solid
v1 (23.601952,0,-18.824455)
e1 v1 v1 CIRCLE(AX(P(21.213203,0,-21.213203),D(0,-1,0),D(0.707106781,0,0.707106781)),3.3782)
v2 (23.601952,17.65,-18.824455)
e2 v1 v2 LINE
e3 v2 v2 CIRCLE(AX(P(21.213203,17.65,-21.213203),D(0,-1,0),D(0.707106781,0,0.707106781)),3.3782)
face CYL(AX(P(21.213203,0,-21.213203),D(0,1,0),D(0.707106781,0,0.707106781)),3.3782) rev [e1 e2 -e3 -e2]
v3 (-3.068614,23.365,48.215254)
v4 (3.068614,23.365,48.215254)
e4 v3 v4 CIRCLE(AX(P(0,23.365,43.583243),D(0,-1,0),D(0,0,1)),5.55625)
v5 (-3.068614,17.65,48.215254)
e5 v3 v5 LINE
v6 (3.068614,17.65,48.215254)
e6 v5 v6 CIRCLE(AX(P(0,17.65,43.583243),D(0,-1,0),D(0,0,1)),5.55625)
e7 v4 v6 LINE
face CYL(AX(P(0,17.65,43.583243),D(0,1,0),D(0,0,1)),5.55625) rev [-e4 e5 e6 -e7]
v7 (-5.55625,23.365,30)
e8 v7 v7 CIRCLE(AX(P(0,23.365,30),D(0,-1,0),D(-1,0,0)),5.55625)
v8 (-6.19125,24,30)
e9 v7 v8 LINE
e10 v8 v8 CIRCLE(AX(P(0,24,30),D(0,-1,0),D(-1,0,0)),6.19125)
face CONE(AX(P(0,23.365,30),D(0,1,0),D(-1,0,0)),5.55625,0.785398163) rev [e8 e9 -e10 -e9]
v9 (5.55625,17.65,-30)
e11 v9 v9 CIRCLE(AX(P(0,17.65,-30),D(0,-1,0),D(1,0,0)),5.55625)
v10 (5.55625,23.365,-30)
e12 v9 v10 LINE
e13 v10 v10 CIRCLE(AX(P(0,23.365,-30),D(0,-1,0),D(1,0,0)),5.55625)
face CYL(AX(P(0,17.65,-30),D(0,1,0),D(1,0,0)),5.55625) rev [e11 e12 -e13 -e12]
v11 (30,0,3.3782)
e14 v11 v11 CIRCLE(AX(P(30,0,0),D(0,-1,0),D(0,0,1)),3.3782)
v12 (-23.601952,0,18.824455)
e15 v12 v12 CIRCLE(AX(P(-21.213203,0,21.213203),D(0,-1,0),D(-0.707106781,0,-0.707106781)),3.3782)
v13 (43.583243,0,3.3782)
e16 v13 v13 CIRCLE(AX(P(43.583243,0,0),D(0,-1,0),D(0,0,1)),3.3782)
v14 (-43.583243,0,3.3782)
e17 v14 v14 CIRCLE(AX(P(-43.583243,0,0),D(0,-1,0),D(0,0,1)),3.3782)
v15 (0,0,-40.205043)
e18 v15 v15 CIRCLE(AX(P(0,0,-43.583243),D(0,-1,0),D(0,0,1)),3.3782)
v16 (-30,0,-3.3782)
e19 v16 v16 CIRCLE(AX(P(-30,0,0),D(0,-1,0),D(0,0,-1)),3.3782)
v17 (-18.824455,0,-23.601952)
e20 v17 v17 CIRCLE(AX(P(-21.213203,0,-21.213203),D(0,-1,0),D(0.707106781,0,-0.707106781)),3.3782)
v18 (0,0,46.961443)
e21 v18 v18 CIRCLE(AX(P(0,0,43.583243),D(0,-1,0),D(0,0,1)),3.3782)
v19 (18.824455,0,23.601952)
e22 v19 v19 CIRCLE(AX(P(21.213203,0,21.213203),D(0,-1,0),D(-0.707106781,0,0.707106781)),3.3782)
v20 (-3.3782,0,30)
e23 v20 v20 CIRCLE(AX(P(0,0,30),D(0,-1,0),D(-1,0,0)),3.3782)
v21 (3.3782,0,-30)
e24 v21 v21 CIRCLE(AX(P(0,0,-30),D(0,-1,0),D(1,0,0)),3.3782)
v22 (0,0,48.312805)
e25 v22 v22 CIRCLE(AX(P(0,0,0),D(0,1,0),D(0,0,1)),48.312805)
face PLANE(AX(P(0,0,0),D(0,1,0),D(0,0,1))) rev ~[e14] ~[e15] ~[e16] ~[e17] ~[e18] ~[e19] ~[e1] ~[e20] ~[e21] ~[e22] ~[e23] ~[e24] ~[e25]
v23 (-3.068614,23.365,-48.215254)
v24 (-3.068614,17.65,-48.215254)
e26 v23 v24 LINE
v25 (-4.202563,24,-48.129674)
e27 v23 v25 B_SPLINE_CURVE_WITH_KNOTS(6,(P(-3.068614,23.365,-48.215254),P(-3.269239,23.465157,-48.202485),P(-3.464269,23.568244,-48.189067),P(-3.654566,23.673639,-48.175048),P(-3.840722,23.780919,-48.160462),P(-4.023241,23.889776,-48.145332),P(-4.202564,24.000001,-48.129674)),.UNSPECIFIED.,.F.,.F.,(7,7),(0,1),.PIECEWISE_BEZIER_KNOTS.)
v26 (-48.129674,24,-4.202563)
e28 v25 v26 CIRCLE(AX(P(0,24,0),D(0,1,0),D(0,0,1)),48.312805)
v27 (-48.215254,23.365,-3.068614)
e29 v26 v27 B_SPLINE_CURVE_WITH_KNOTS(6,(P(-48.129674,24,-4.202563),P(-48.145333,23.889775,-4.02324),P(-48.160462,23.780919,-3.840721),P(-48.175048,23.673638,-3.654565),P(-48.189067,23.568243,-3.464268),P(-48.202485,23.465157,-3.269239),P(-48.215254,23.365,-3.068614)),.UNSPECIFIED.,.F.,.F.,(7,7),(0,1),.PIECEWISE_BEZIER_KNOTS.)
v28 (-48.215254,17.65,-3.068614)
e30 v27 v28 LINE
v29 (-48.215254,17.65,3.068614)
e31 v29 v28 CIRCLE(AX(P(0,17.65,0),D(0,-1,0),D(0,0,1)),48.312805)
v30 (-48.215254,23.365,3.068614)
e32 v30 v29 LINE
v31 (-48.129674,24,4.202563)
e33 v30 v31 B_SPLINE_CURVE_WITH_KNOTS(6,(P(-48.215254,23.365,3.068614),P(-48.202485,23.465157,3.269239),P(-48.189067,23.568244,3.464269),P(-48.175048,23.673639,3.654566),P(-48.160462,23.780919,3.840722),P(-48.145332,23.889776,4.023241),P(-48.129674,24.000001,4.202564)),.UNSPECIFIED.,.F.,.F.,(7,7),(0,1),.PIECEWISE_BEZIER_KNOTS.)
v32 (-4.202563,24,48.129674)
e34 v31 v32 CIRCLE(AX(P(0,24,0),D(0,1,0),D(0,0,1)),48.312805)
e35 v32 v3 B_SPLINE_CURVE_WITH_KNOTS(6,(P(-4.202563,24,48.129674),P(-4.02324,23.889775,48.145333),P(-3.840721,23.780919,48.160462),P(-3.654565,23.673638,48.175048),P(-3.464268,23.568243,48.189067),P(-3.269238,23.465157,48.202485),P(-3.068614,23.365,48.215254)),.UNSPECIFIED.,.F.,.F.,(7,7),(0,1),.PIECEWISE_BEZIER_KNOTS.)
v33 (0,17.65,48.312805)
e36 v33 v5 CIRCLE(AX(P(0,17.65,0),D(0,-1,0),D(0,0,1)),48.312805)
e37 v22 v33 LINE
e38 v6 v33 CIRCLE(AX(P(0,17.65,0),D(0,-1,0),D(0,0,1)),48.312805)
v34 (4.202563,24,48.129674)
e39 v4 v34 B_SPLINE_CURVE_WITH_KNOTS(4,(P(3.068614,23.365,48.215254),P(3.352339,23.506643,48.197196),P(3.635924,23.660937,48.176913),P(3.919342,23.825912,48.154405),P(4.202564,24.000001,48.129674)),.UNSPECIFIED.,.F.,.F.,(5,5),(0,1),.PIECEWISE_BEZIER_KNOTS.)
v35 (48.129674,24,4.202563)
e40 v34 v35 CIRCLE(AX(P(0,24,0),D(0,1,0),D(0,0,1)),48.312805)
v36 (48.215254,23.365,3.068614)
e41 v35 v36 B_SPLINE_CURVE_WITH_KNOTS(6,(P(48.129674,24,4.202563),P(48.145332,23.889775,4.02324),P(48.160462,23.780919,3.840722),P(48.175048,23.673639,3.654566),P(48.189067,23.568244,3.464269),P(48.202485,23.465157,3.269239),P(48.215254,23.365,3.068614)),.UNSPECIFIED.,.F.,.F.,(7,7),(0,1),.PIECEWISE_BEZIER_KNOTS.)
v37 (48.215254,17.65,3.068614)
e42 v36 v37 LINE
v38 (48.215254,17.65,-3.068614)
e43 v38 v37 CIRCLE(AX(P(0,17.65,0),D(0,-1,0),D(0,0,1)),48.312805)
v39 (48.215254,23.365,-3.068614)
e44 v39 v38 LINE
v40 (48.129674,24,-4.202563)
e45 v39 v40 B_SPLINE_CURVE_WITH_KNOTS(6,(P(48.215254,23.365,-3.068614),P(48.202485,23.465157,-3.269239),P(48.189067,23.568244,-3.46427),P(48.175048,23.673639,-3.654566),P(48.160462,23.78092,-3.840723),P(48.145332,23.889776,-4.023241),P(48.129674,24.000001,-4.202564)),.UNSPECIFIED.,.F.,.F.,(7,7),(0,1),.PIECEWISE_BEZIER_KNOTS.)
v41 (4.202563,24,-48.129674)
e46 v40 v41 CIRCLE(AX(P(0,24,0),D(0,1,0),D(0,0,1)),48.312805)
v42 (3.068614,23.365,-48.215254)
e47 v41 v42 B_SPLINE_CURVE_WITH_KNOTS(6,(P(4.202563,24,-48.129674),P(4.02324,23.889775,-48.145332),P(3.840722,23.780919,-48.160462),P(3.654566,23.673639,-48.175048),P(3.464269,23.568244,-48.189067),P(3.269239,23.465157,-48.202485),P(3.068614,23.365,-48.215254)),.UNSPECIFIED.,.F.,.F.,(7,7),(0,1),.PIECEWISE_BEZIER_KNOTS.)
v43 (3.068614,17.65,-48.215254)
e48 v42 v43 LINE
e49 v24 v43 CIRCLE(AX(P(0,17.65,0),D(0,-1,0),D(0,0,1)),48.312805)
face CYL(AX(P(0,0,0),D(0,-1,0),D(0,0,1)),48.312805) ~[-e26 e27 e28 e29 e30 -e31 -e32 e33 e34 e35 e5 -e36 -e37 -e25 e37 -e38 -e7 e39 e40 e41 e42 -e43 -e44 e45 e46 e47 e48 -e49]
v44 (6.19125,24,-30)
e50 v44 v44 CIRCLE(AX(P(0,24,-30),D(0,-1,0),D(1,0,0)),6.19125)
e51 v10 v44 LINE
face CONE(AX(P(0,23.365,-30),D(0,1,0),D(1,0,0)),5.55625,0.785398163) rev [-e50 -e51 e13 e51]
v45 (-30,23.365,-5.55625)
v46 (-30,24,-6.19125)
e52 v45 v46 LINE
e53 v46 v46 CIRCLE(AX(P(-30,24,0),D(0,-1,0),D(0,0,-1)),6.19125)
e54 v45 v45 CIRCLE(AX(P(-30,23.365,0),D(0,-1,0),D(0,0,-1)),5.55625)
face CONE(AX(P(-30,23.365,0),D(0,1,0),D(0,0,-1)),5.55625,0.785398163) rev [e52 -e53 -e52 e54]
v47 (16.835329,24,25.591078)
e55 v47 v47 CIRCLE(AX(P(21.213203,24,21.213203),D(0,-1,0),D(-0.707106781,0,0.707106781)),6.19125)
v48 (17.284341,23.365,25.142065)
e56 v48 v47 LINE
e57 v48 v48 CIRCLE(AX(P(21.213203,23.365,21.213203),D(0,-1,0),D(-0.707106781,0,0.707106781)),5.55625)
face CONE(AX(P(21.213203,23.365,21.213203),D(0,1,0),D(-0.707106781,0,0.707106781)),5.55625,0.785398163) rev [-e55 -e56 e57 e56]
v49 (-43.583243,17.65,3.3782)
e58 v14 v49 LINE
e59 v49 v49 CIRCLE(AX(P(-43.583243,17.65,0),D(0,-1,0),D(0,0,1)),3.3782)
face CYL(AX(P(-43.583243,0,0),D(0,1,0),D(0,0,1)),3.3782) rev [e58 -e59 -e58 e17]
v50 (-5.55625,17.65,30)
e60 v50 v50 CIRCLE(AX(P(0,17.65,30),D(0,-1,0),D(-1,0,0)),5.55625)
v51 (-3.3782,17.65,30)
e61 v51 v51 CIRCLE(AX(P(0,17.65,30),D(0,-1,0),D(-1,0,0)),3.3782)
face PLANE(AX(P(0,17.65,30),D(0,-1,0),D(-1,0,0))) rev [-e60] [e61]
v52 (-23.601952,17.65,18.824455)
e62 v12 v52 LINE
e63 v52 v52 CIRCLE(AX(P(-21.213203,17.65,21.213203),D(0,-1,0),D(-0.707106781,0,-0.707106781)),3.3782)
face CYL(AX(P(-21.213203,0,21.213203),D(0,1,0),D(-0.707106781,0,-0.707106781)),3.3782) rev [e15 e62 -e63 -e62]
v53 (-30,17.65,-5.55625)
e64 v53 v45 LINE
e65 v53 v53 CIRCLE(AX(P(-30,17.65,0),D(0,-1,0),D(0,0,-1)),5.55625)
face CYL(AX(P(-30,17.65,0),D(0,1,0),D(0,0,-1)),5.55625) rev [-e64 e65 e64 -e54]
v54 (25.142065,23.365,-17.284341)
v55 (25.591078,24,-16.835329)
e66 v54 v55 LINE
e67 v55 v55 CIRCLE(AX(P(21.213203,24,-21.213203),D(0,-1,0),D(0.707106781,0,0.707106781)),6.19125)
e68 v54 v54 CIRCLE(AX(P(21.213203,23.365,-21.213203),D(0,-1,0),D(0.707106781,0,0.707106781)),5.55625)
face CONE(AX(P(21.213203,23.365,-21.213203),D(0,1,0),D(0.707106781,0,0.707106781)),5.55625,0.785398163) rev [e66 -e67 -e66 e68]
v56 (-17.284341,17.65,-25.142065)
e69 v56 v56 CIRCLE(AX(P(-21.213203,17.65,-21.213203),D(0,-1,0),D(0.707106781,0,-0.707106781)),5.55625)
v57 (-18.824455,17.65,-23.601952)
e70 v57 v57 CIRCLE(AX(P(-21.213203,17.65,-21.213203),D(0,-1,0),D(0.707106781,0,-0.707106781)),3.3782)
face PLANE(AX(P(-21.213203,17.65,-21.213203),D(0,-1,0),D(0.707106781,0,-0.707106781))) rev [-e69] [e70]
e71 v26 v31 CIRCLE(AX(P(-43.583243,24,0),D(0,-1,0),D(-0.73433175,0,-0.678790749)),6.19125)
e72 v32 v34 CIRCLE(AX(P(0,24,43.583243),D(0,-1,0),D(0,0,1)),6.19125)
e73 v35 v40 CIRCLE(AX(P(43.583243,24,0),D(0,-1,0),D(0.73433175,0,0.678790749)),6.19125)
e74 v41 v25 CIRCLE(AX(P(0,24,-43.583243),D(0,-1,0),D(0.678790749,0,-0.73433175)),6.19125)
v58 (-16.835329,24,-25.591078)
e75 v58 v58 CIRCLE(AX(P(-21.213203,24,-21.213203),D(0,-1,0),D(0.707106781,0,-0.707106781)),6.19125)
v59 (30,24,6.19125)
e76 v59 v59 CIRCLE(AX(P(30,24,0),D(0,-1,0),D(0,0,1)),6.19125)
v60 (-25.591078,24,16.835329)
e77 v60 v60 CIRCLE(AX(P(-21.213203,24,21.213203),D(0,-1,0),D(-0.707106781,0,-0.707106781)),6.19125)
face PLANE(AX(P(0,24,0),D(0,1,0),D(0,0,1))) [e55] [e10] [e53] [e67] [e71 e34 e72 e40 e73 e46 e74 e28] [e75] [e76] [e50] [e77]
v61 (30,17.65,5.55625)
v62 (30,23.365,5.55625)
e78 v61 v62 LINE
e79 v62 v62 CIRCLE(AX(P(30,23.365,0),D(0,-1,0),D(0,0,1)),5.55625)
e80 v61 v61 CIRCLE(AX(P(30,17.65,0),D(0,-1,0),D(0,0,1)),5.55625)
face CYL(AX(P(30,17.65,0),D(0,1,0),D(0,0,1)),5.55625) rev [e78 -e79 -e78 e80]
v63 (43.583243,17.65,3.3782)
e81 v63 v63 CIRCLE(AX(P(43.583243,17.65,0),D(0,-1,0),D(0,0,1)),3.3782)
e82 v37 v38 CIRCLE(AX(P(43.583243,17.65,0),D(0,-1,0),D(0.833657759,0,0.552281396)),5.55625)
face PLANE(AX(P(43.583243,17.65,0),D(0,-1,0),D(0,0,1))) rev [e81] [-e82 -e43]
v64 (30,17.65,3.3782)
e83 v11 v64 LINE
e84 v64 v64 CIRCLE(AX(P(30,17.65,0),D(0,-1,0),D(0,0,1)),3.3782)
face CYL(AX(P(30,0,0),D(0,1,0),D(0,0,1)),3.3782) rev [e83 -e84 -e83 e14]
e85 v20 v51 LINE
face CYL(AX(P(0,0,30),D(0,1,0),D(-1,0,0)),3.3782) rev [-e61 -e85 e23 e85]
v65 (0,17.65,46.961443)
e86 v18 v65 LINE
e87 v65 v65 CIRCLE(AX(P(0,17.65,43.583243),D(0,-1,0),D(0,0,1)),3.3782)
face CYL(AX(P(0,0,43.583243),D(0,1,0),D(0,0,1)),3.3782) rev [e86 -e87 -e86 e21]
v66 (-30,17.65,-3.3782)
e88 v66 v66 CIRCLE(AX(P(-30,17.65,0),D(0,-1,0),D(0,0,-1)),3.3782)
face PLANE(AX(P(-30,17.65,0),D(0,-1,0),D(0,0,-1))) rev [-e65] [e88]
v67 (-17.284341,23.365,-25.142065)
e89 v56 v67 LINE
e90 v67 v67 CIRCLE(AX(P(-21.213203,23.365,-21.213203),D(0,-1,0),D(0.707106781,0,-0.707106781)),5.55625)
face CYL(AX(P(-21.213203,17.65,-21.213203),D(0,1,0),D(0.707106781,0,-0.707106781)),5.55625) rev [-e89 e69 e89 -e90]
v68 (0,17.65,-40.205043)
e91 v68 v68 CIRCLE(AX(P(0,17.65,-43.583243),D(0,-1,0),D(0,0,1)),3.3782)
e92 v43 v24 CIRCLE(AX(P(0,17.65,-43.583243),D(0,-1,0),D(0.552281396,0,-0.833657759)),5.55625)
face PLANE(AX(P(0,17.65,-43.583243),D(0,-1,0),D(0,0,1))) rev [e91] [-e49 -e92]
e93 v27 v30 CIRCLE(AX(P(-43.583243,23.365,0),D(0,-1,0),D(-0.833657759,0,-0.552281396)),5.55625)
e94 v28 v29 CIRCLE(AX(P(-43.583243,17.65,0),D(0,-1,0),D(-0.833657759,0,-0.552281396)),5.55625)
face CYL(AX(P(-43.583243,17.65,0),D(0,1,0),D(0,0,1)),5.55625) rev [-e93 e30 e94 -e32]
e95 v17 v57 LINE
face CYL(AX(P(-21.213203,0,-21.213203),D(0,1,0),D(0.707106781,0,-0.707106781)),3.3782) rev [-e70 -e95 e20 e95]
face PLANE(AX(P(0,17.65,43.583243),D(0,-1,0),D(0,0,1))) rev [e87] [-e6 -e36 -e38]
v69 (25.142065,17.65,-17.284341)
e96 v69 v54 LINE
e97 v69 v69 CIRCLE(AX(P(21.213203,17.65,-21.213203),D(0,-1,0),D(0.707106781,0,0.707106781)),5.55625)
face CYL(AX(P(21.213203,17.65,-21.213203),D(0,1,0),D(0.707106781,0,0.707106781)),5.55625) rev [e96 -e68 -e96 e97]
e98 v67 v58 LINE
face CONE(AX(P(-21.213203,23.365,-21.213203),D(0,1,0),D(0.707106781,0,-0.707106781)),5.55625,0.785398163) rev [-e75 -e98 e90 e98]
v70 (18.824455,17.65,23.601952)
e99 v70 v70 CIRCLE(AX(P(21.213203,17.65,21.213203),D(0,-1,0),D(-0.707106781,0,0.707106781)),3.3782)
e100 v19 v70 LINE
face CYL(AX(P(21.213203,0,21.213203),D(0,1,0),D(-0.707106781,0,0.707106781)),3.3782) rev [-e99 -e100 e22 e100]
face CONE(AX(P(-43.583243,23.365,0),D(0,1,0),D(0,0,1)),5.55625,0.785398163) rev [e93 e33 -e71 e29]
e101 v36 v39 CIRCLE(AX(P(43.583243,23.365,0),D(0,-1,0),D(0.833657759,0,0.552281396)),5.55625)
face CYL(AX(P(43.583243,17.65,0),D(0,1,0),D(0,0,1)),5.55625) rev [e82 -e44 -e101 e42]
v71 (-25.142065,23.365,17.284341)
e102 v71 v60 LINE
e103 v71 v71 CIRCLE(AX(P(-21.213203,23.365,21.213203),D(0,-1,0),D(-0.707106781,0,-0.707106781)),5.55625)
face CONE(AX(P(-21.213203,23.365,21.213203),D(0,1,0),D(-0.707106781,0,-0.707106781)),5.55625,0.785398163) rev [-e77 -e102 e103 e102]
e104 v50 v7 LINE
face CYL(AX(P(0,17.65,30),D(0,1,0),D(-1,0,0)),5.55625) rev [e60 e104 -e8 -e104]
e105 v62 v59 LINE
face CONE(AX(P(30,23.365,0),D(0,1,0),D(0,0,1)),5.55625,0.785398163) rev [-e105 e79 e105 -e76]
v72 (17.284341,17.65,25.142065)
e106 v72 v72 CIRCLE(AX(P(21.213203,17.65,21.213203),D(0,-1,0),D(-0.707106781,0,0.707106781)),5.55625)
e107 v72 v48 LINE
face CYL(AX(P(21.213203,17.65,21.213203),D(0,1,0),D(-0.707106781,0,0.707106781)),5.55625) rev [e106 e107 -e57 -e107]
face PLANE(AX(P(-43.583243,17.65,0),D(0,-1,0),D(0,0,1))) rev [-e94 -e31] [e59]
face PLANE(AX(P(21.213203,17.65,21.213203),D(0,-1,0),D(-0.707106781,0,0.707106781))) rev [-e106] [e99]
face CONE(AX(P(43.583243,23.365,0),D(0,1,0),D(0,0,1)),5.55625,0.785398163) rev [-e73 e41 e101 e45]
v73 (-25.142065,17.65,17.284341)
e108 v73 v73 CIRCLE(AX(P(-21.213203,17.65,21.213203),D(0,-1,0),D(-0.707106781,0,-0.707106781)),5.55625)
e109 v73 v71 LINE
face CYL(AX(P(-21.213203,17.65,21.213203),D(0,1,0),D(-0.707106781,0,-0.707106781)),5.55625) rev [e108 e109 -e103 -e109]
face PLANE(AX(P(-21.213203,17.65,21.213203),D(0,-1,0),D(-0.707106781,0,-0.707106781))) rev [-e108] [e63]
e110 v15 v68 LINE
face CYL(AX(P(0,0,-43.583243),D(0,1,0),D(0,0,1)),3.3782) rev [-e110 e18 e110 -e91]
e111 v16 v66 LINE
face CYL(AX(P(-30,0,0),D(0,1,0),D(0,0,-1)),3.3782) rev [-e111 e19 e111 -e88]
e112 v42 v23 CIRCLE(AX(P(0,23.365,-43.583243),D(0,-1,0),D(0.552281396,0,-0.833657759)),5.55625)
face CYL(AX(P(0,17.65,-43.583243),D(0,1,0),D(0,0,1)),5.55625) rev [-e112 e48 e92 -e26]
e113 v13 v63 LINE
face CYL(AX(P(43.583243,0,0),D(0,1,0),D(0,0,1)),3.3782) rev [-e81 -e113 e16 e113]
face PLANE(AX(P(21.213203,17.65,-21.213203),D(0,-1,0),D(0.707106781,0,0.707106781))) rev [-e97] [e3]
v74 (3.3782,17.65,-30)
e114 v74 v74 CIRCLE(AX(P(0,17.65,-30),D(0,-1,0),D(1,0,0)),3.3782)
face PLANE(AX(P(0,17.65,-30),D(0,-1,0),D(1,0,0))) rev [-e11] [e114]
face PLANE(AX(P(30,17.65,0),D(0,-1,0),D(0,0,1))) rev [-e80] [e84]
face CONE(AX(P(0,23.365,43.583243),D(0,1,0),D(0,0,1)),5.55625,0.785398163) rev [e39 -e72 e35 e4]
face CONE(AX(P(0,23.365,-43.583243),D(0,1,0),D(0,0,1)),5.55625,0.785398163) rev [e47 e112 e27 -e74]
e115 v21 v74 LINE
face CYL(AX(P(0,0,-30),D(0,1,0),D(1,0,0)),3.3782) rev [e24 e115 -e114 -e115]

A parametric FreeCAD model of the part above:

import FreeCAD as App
import Part
import Sketcher
from FreeCAD import Vector
Q = App.Units.Quantity


def add_polygon(sketch, points):
    """Adds a closed chain of lines whose ends are joined by coincident constraints."""
    first, n = sketch.GeometryCount, len(points)
    for a, b in zip(points, points[1:] + points[:1]):
        sketch.addGeometry(Part.LineSegment(App.Vector(*a, 0), App.Vector(*b, 0)), False)
    for i in range(n):
        sketch.addConstraint(Sketcher.Constraint("Coincident", first + i, 2, first + (i + 1) % n, 1))

doc = App.newDocument("Part")
body = doc.addObject("PartDesign::Body", "Body")

sketch1 = doc.addObject("Sketcher::SketchObject", "Sketch")
body.addObject(sketch1)
sketch1.AttachmentSupport = (doc.XZ_Plane, [""])
sketch1.MapMode = "FlatFace"
sketch1.addGeometry(Part.Circle(Vector(0, 0, 0), Vector(0, 0, 1), 48), False)
sketch1.addConstraint(Sketcher.Constraint("Coincident", 0, 3, -1, 1))
sketch1.addConstraint(Sketcher.Constraint("Diameter", 0, Q("96.625609 mm")))
pad1 = doc.addObject("PartDesign::Pad", "Pad")
body.addObject(pad1)
pad1.Profile = sketch1
pad1.Length = 24
pad1.Reversed = True

sketch2 = doc.addObject("Sketcher::SketchObject", "Sketch001")
body.addObject(sketch2)
sketch2.AttachmentSupport = (doc.YZ_Plane, [""])
sketch2.MapMode = "FlatFace"
add_polygon(sketch2, [(0, -43.6), (24, -43.6), (24, -37.4), (23.4, -38), (17.6, -38), (17.6, -40.2), (0, -40.2)])
sketch2.addGeometry(Part.LineSegment(Vector(24, -43.6, 0), Vector(0, -43.6, 0)), True)
sketch2.addConstraint(Sketcher.Constraint("Horizontal", 0))
sketch2.addConstraint(Sketcher.Constraint("Vertical", 1))
sketch2.addConstraint(Sketcher.Constraint("Horizontal", 3))
sketch2.addConstraint(Sketcher.Constraint("Vertical", 4))
sketch2.addConstraint(Sketcher.Constraint("Horizontal", 5))
sketch2.addConstraint(Sketcher.Constraint("Vertical", 6))
sketch2.addConstraint(Sketcher.Constraint("Horizontal", 7))
sketch2.addConstraint(Sketcher.Constraint("Coincident", 7, 1, 0, 2))
sketch2.addConstraint(Sketcher.Constraint("PointOnObject", 5, 2, -2))
sketch2.addConstraint(Sketcher.Constraint("PointOnObject", 7, 2, -2))
sketch2.addConstraint(Sketcher.Constraint("Angle", 2, Q("-135 deg")))
sketch2.addConstraint(Sketcher.Constraint("DistanceX", 3, 2, 3, 1, Q("0.225 in")))
sketch2.addConstraint(Sketcher.Constraint("DistanceY", 6, 2, 6, 1, Q("0.133 in")))
sketch2.addConstraint(Sketcher.Constraint("DistanceX", 3, 2, 1, 2, Q("0.25 in")))
sketch2.addConstraint(Sketcher.Constraint("DistanceY", 0, 2, 2, 2, Q("0.21875 in")))
sketch2.addConstraint(Sketcher.Constraint("DistanceX", 0, 1, 0, 2, Q("24 mm")))
sketch2.addConstraint(Sketcher.Constraint("DistanceY", 0, 2, -1, 1, Q("43.583243 mm")))
groove = doc.addObject("PartDesign::Groove", "Groove")
body.addObject(groove)
groove.Profile = sketch2
groove.ReferenceAxis = (sketch2, ["Axis0"])
groove.Angle = 360
doc.recompute()

datumline = doc.addObject("PartDesign::Line", "DatumLine")
body.addObject(datumline)
datumline.Placement = App.Placement(Vector(0, 0, 0), App.Rotation(Vector(0, 0, 1), Vector(-0.707106781, 0, 0.707106781)))
linearpattern = doc.addObject("PartDesign::LinearPattern", "LinearPattern")
body.addObject(linearpattern)
linearpattern.Originals = [groove]
linearpattern.Direction = (datumline, [""])
linearpattern.Mode = "offset"
linearpattern.Offset = 61.636013
linearpattern.Occurrences = 2
body.Tip = linearpattern
doc.recompute()

linearpattern2 = doc.addObject("PartDesign::LinearPattern", "LinearPattern001")
body.addObject(linearpattern2)
linearpattern2.Originals = [groove]
linearpattern2.Direction = (doc.Z_Axis, [""])
linearpattern2.Mode = "offset"
linearpattern2.Offset = 87.166486
linearpattern2.Occurrences = 2
body.Tip = linearpattern2
doc.recompute()

datumline2 = doc.addObject("PartDesign::Line", "DatumLine001")
body.addObject(datumline2)
datumline2.Placement = App.Placement(Vector(0, 0, 0), App.Rotation(Vector(0, 0, 1), Vector(0.707106781, 0, 0.707106781)))
linearpattern3 = doc.addObject("PartDesign::LinearPattern", "LinearPattern002")
body.addObject(linearpattern3)
linearpattern3.Originals = [groove]
linearpattern3.Direction = (datumline2, [""])
linearpattern3.Mode = "offset"
linearpattern3.Offset = 61.636013
linearpattern3.Occurrences = 2
body.Tip = linearpattern3

sketch3 = doc.addObject("Sketcher::SketchObject", "Sketch002")
body.addObject(sketch3)
sketch3.AttachmentSupport = (doc.YZ_Plane, [""])
sketch3.MapMode = "FlatFace"
sketch3.AttachmentOffset = App.Placement(Vector(0, 0, 30), App.Rotation())
add_polygon(sketch3, [(0, 0), (24, 0), (24, 6.2), (23.4, 5.6), (17.6, 5.6), (17.6, 3.4), (0, 3.4)])
sketch3.addConstraint(Sketcher.Constraint("Horizontal", 0))
sketch3.addConstraint(Sketcher.Constraint("Vertical", 1))
sketch3.addConstraint(Sketcher.Constraint("Horizontal", 3))
sketch3.addConstraint(Sketcher.Constraint("Vertical", 4))
sketch3.addConstraint(Sketcher.Constraint("Horizontal", 5))
sketch3.addConstraint(Sketcher.Constraint("Vertical", 6))
sketch3.addConstraint(Sketcher.Constraint("Coincident", 6, 2, -1, 1))
sketch3.addConstraint(Sketcher.Constraint("Angle", 2, Q("-135 deg")))
sketch3.addConstraint(Sketcher.Constraint("DistanceX", 3, 2, 3, 1, Q("0.225 in")))
sketch3.addConstraint(Sketcher.Constraint("DistanceY", 6, 2, 6, 1, Q("0.133 in")))
sketch3.addConstraint(Sketcher.Constraint("DistanceX", 3, 2, 1, 2, Q("0.25 in")))
sketch3.addConstraint(Sketcher.Constraint("DistanceY", -1, 1, 2, 2, Q("0.21875 in")))
sketch3.addConstraint(Sketcher.Constraint("DistanceX", 0, 1, 0, 2, Q("24 mm")))
groove2 = doc.addObject("PartDesign::Groove", "Groove001")
body.addObject(groove2)
groove2.Profile = sketch3
groove2.ReferenceAxis = (sketch3, ["H_Axis"])
groove2.Angle = 360
doc.recompute()

polarpattern = doc.addObject("PartDesign::PolarPattern", "PolarPattern")
body.addObject(polarpattern)
polarpattern.Originals = [groove2]
polarpattern.Axis = (doc.Y_Axis, [""])
polarpattern.Angle = 360
polarpattern.Occurrences = 8
body.Tip = polarpattern

doc.recompute()
